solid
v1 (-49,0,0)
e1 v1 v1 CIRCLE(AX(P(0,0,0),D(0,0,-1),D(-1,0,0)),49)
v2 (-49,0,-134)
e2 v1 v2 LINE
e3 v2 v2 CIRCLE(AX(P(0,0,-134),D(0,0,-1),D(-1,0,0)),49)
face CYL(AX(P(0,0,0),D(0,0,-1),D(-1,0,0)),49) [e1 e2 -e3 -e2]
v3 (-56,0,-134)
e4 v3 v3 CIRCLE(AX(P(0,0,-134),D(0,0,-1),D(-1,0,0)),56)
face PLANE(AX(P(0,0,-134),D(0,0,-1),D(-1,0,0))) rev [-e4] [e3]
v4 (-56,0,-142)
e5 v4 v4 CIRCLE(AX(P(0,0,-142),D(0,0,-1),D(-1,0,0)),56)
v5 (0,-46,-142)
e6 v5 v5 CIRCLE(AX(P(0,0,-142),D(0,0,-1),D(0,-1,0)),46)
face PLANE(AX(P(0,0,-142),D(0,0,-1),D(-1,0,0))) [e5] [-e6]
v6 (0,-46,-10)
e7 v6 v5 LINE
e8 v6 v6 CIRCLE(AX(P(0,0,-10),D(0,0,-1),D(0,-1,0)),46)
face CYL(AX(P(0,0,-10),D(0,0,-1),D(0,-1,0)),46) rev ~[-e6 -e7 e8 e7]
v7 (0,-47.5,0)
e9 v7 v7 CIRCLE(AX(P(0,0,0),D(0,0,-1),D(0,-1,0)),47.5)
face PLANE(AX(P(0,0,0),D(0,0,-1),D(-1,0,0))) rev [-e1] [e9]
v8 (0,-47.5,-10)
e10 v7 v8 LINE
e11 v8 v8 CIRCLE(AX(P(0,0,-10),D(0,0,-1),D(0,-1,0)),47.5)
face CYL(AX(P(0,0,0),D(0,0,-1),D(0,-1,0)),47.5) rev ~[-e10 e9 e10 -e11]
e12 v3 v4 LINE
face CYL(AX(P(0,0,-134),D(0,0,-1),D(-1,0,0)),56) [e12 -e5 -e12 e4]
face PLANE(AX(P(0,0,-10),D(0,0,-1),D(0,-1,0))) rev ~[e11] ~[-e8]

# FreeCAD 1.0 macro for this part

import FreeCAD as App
import Part
import Sketcher
Q = App.Units.Quantity

doc = App.newDocument("Part")
body = doc.addObject("PartDesign::Body", "Body")

sketch1 = body.newObject("Sketcher::SketchObject", "Sketch")
sketch1.AttachmentSupport = (doc.getObject("XZ_Plane"), [""])
sketch1.MapMode = "FlatFace"
sketch1.addGeometry([
    Part.LineSegment(App.Vector(-49, 0, 0), App.Vector(0, 0, 0)),
    Part.LineSegment(App.Vector(0, 0, 0), App.Vector(0, -142, 0)),
    Part.LineSegment(App.Vector(0, -142, 0), App.Vector(-56, -142, 0)),
    Part.LineSegment(App.Vector(-56, -142, 0), App.Vector(-56, -134, 0)),
    Part.LineSegment(App.Vector(-56, -134, 0), App.Vector(-49, -134, 0)),
    Part.LineSegment(App.Vector(-49, -134, 0), App.Vector(-49, 0, 0)),
], False)
sketch1.addConstraint([
    Sketcher.Constraint("Coincident", 0, 2, 1, 1),
    Sketcher.Constraint("Coincident", 1, 2, 2, 1),
    Sketcher.Constraint("Coincident", 2, 2, 3, 1),
    Sketcher.Constraint("Coincident", 3, 2, 4, 1),
    Sketcher.Constraint("Coincident", 4, 2, 5, 1),
    Sketcher.Constraint("Coincident", 5, 2, 0, 1),
    Sketcher.Constraint("Horizontal", 0),
    Sketcher.Constraint("Vertical", 1),
    Sketcher.Constraint("Horizontal", 2),
    Sketcher.Constraint("Vertical", 3),
    Sketcher.Constraint("Horizontal", 4),
    Sketcher.Constraint("Vertical", 5),
    Sketcher.Constraint("Coincident", 0, 2, -1, 1),
    Sketcher.Constraint("DistanceY", 3, 1, 3, 2, Q("8 mm")),
    Sketcher.Constraint("DistanceY", 5, 1, 5, 2, Q("134 mm")),
    Sketcher.Constraint("DistanceX", 0, 1, 0, 2, Q("49 mm")),
    Sketcher.Constraint("DistanceX", 2, 2, 2, 1, Q("56 mm")),
])
revolution = body.newObject("PartDesign::Revolution", "Revolution")
revolution.Profile = sketch1
revolution.ReferenceAxis = (sketch1, ["V_Axis"])
revolution.Angle = 360

sketch2 = body.newObject("Sketcher::SketchObject", "Sketch001")
sketch2.AttachmentSupport = (doc.getObject("XY_Plane"), [""])
sketch2.MapMode = "FlatFace"
sketch2.addGeometry(Part.Circle(App.Vector(0, 0, 0), App.Vector(0, 0, 1), 46), False)
sketch2.addConstraint([
    Sketcher.Constraint("Coincident", 0, 3, -1, 1),
    Sketcher.Constraint("Diameter", 0, Q("92 mm")),
])
doc.recompute()
hole = body.newObject("PartDesign::Hole", "Hole")
hole.Profile = sketch2
hole.ThreadType = "None"
hole.Diameter = 92
hole.DepthType = "ThroughAll"
hole.HoleCutType = "Counterbore"
hole.HoleCutDiameter = 95
hole.HoleCutDepth = 10

doc.recompute()
